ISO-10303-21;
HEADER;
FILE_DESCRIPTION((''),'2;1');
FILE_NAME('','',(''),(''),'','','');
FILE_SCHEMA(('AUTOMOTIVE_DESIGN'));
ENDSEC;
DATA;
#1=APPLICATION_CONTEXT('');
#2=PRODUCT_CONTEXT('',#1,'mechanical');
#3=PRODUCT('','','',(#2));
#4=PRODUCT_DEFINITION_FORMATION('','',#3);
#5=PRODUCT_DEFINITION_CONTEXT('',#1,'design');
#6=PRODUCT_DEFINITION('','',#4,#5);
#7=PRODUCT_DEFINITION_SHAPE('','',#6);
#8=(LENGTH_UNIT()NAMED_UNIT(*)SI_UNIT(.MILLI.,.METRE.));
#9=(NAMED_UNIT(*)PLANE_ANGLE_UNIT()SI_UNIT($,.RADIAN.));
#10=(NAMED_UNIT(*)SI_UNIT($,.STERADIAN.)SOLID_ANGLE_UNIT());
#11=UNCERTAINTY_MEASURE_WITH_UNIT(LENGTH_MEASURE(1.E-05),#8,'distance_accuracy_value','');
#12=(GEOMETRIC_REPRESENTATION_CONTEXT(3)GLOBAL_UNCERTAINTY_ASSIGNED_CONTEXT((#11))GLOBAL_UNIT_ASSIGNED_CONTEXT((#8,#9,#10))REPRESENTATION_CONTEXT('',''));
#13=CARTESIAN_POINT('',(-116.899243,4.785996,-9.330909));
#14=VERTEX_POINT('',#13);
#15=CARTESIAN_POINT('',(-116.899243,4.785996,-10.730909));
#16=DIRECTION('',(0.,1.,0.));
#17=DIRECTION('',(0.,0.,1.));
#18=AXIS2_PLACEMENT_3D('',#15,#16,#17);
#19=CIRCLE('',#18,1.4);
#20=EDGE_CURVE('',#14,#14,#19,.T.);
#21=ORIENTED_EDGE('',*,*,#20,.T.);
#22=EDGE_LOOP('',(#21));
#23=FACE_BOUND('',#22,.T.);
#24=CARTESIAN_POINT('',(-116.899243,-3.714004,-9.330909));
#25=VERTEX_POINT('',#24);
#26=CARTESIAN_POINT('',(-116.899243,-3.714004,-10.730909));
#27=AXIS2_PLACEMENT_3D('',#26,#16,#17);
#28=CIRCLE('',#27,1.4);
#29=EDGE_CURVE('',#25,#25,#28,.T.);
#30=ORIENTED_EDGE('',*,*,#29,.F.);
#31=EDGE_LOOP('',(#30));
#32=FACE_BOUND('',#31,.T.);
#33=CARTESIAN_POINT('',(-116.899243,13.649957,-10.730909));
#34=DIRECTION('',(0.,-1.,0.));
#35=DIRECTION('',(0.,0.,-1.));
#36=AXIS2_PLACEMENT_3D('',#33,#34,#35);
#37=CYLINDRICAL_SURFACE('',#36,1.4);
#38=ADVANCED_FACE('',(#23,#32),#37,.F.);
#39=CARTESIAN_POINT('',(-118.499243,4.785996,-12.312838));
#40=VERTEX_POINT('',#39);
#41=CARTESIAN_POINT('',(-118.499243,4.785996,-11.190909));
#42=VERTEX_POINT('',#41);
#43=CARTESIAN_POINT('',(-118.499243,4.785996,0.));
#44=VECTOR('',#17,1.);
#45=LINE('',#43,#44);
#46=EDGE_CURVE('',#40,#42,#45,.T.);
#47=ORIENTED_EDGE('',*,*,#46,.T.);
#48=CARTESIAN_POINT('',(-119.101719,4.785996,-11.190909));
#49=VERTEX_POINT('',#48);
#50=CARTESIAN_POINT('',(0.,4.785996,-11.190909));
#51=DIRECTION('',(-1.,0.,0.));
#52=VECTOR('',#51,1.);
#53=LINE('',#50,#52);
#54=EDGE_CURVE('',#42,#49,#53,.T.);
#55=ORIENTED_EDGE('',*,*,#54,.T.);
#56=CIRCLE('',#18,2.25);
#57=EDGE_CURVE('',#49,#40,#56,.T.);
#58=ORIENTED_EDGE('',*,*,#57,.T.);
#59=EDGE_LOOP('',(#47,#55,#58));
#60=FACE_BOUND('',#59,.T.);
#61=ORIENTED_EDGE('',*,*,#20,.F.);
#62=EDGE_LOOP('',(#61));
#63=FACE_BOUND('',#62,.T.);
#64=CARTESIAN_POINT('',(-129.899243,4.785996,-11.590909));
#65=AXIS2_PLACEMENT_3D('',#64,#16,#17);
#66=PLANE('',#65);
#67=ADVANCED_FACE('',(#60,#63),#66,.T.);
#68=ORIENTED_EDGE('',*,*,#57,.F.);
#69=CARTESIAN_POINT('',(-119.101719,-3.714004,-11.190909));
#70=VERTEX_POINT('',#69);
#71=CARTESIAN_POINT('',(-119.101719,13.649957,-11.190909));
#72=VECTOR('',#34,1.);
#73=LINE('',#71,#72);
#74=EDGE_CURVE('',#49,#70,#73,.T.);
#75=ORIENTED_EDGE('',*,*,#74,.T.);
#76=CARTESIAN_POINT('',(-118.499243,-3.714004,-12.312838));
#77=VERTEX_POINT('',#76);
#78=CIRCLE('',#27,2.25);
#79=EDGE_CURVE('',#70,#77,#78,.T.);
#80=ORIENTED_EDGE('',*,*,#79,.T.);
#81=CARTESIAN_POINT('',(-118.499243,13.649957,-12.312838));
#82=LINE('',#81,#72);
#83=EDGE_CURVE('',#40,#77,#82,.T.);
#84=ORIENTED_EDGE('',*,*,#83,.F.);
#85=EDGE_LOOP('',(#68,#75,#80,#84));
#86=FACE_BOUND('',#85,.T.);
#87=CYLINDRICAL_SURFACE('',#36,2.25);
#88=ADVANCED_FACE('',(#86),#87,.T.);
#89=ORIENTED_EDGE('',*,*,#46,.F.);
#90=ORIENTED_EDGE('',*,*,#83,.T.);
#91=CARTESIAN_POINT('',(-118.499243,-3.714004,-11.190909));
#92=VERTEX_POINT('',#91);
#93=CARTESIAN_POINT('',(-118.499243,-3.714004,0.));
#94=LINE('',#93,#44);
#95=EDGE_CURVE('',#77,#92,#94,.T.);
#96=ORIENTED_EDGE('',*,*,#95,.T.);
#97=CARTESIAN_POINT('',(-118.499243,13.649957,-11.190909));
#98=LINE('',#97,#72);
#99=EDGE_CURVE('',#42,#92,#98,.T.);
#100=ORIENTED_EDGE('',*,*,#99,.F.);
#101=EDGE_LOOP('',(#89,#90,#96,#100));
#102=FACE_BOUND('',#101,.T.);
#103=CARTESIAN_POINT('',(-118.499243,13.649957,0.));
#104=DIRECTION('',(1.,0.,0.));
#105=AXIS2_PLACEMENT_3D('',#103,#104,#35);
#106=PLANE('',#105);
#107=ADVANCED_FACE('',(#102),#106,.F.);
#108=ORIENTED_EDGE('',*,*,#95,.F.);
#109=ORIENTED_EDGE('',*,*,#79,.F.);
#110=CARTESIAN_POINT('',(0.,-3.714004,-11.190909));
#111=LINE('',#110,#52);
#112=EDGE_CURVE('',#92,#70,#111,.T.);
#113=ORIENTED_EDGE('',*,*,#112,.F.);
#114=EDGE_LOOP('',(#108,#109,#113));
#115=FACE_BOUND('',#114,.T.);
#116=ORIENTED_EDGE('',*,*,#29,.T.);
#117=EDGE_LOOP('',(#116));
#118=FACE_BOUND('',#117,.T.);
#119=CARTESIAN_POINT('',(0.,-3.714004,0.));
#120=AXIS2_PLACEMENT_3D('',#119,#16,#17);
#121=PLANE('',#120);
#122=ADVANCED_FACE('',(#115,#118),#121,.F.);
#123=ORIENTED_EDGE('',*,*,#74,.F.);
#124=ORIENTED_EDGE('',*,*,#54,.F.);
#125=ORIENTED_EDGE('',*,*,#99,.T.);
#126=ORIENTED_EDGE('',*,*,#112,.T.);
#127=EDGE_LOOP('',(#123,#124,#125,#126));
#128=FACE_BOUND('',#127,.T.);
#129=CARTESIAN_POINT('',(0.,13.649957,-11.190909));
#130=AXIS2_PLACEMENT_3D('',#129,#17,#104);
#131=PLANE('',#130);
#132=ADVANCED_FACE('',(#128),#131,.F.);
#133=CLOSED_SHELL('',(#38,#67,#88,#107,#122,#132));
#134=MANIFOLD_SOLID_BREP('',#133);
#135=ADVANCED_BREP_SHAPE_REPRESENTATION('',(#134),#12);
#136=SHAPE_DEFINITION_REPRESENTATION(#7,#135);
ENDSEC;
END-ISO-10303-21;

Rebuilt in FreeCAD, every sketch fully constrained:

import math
import FreeCAD as App
import Part
import Sketcher
from FreeCAD import Vector

doc = App.newDocument("Part")
params = doc.addObject("Spreadsheet::Sheet", "Params")
for row, (alias, value) in enumerate([
    ("sketch1_diameter", "2.8 mm"),
    ("sketch1_radius", "2.25 mm"),
    ("sketch1_width", "1.6 mm"),
    ("pad1_length", "8.5 mm"),
], start=1):
    params.set(f"A{row}", alias)
    params.set(f"B{row}", "=" + value)
    params.setAlias(f"B{row}", alias)

body = doc.addObject("PartDesign::Body", "Body")

sketch1 = doc.addObject("Sketcher::SketchObject", "Sketch")
body.addObject(sketch1)
sketch1.AttachmentSupport = (doc.XZ_Plane, [""])
sketch1.MapMode = "FlatFace"
sketch1.AttachmentOffset = App.Placement(Vector(0, 0, 3.714004), App.Rotation())
sketch1.addGeometry([
    Part.ArcOfCircle(Part.Circle(Vector(-116.9, -10.7, 0), Vector(0, 0, 1), 2.2), math.radians(-135), math.radians(0)),
    Part.LineSegment(Vector(-118.5, -12.3, 0), Vector(-118.5, -11.2, 0)),
    Part.LineSegment(Vector(-118.5, -11.2, 0), Vector(-119.1, -11.2, 0)),
    Part.ArcOfCircle(Part.Circle(Vector(-116.9, -10.7, 0), Vector(0, 0, 1), 2.2), math.radians(0), math.radians(192)),
    Part.Circle(Vector(-116.9, -10.7, 0), Vector(0, 0, 1), 1.4),
], False)
sketch1.addConstraint([
    Sketcher.Constraint("Coincident", 0, 1, 1, 1),
    Sketcher.Constraint("Coincident", 1, 2, 2, 1),
    Sketcher.Constraint("Coincident", 2, 2, 3, 2),
    Sketcher.Constraint("Tangent", 3, 1, 0, 2),
    Sketcher.Constraint("Vertical", 1),
    Sketcher.Constraint("Horizontal", 2),
    Sketcher.Constraint("Coincident", 4, 3, 0, 3),
    Sketcher.Constraint("Equal", 0, 3),
    Sketcher.Constraint("Horizontal", 4, 3, 3, 1),
    Sketcher.Constraint("Diameter", 4, 2.8),
    Sketcher.Constraint("Radius", 0, 2.25),
    Sketcher.Constraint("DistanceX", 0, 1, 0, 3, 1.6),
    Sketcher.Constraint("DistanceY", 1, 2, 0, 3, 0.46),
    Sketcher.Constraint("DistanceY", 0, 3, -1, 1, 10.730909),
    Sketcher.Constraint("DistanceX", 2, 2, -1, 1, 119.101719),
])
sketch1.setExpression("Constraints[9]", "Params.sketch1_diameter")
sketch1.setExpression("Constraints[10]", "Params.sketch1_radius")
sketch1.setExpression("Constraints[11]", "Params.sketch1_width")
pad1 = doc.addObject("PartDesign::Pad", "Pad")
body.addObject(pad1)
pad1.Profile = sketch1
pad1.setExpression("Length", "Params.pad1_length")
pad1.Reversed = True

doc.recompute()
